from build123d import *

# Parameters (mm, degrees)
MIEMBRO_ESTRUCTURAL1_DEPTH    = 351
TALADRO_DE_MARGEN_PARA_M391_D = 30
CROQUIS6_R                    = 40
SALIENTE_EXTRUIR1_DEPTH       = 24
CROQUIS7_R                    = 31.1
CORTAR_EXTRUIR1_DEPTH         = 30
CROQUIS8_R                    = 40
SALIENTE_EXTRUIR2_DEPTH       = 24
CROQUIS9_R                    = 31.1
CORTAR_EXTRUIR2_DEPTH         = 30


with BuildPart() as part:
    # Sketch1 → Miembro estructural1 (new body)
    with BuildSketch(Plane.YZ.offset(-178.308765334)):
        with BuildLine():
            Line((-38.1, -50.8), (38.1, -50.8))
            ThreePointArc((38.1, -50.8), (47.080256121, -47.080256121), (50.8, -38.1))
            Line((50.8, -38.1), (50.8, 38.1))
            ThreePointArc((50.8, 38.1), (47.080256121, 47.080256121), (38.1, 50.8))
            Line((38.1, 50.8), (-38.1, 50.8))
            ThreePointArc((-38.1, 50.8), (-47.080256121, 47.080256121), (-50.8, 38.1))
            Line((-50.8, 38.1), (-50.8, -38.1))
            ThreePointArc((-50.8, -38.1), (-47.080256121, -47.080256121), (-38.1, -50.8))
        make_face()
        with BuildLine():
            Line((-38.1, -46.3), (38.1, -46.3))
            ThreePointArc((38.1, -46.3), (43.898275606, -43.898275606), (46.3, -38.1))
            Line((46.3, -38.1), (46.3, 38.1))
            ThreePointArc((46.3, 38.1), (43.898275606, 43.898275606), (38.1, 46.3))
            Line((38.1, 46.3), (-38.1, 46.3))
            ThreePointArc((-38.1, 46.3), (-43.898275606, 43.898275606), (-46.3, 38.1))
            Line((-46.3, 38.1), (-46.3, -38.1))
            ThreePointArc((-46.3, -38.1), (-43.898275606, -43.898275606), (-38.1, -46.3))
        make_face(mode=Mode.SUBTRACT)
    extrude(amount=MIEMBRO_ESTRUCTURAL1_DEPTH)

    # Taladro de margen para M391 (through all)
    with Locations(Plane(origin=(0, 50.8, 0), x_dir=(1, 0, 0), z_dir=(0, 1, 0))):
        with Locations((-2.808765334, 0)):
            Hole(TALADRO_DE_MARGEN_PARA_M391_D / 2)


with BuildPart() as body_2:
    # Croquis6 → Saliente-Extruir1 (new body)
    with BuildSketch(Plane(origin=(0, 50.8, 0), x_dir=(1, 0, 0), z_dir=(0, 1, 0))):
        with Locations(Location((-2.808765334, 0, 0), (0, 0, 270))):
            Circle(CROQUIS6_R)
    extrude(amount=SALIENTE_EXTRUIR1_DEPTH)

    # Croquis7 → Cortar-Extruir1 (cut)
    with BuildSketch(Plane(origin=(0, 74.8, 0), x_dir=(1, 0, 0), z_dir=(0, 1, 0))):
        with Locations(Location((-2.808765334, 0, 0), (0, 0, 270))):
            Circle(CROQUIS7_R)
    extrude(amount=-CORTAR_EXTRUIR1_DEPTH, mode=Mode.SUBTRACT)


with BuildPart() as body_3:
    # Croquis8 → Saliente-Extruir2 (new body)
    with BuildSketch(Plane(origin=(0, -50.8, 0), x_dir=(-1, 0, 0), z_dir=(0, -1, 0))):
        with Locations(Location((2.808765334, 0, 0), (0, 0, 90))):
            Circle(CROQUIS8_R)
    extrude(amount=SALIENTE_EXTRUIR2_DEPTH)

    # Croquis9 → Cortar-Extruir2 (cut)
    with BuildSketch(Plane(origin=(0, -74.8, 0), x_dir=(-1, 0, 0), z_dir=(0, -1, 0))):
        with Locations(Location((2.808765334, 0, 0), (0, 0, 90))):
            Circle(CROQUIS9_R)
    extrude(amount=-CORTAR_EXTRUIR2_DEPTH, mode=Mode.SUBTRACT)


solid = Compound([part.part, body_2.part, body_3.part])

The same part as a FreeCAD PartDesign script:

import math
import FreeCAD as App
import Part
import Sketcher

V = App.Vector
Q = App.Units.Quantity

doc = App.newDocument("Part")
body = doc.addObject("PartDesign::Body", "Body")

# Sketch on YZ plane
sketch1 = body.newObject("Sketcher::SketchObject", "Sketch")
sketch1.AttachmentSupport = (doc.getObject("YZ_Plane"), [""])
sketch1.MapMode = "FlatFace"
sketch1.AttachmentOffset = App.Placement(V(0, 0, -178.308765), App.Rotation())
sketch1.addGeometry(Part.LineSegment(V(-38.1, -50.8, 0), V(38.1, -50.8, 0)), False)
sketch1.addGeometry(Part.ArcOfCircle(Part.Circle(V(38.1, -38.1, 0), V(0, 0, 1), 12.7), math.radians(-90), math.radians(0)), False)
sketch1.addGeometry(Part.LineSegment(V(50.8, -38.1, 0), V(50.8, 38.1, 0)), False)
sketch1.addGeometry(Part.ArcOfCircle(Part.Circle(V(38.1, 38.1, 0), V(0, 0, 1), 12.7), math.radians(0), math.radians(90)), False)
sketch1.addGeometry(Part.LineSegment(V(38.1, 50.8, 0), V(-38.1, 50.8, 0)), False)
sketch1.addGeometry(Part.ArcOfCircle(Part.Circle(V(-38.1, 38.1, 0), V(0, 0, 1), 12.7), math.radians(90), math.radians(180)), False)
sketch1.addGeometry(Part.LineSegment(V(-50.8, 38.1, 0), V(-50.8, -38.1, 0)), False)
sketch1.addGeometry(Part.ArcOfCircle(Part.Circle(V(-38.1, -38.1, 0), V(0, 0, 1), 12.7), math.radians(180), math.radians(270)), False)
sketch1.addGeometry(Part.LineSegment(V(38.1, -46.3, 0), V(-38.1, -46.3, 0)), False)
sketch1.addGeometry(Part.ArcOfCircle(Part.Circle(V(-38.1, -38.1, 0), V(0, 0, 1), 8.2), math.radians(180), math.radians(270)), False)
sketch1.addGeometry(Part.LineSegment(V(-46.3, -38.1, 0), V(-46.3, 38.1, 0)), False)
sketch1.addGeometry(Part.ArcOfCircle(Part.Circle(V(-38.1, 38.1, 0), V(0, 0, 1), 8.2), math.radians(90), math.radians(180)), False)
sketch1.addGeometry(Part.LineSegment(V(-38.1, 46.3, 0), V(38.1, 46.3, 0)), False)
sketch1.addGeometry(Part.ArcOfCircle(Part.Circle(V(38.1, 38.1, 0), V(0, 0, 1), 8.2), math.radians(0), math.radians(90)), False)
sketch1.addGeometry(Part.LineSegment(V(46.3, 38.1, 0), V(46.3, -38.1, 0)), False)
sketch1.addGeometry(Part.ArcOfCircle(Part.Circle(V(38.1, -38.1, 0), V(0, 0, 1), 8.2), math.radians(-90), math.radians(0)), False)
sketch1.addConstraint(Sketcher.Constraint("Tangent", 0, 2, 1, 1))
sketch1.addConstraint(Sketcher.Constraint("Tangent", 1, 2, 2, 1))
sketch1.addConstraint(Sketcher.Constraint("Tangent", 2, 2, 3, 1))
sketch1.addConstraint(Sketcher.Constraint("Tangent", 3, 2, 4, 1))
sketch1.addConstraint(Sketcher.Constraint("Tangent", 4, 2, 5, 1))
sketch1.addConstraint(Sketcher.Constraint("Tangent", 5, 2, 6, 1))
sketch1.addConstraint(Sketcher.Constraint("Tangent", 6, 2, 7, 1))
sketch1.addConstraint(Sketcher.Constraint("Tangent", 7, 2, 0, 1))
sketch1.addConstraint(Sketcher.Constraint("Tangent", 8, 2, 9, 2))
sketch1.addConstraint(Sketcher.Constraint("Tangent", 9, 1, 10, 1))
sketch1.addConstraint(Sketcher.Constraint("Tangent", 10, 2, 11, 2))
sketch1.addConstraint(Sketcher.Constraint("Tangent", 11, 1, 12, 1))
sketch1.addConstraint(Sketcher.Constraint("Tangent", 12, 2, 13, 2))
sketch1.addConstraint(Sketcher.Constraint("Tangent", 13, 1, 14, 1))
sketch1.addConstraint(Sketcher.Constraint("Tangent", 14, 2, 15, 2))
sketch1.addConstraint(Sketcher.Constraint("Tangent", 15, 1, 8, 1))
sketch1.addConstraint(Sketcher.Constraint("Horizontal", 0))
sketch1.addConstraint(Sketcher.Constraint("Vertical", 2))
sketch1.addConstraint(Sketcher.Constraint("Horizontal", 4))
sketch1.addConstraint(Sketcher.Constraint("Vertical", 6))
sketch1.addConstraint(Sketcher.Constraint("Horizontal", 8))
sketch1.addConstraint(Sketcher.Constraint("Vertical", 10))
sketch1.addConstraint(Sketcher.Constraint("Horizontal", 12))
sketch1.addConstraint(Sketcher.Constraint("Vertical", 14))
sketch1.addConstraint(Sketcher.Constraint("Coincident", 9, 3, 7, 3))
sketch1.addConstraint(Sketcher.Constraint("Coincident", 11, 3, 5, 3))
sketch1.addConstraint(Sketcher.Constraint("Coincident", 13, 3, 3, 3))
sketch1.addConstraint(Sketcher.Constraint("Equal", 1, 3))
sketch1.addConstraint(Sketcher.Constraint("Equal", 3, 5))
sketch1.addConstraint(Sketcher.Constraint("Equal", 5, 7))
sketch1.addConstraint(Sketcher.Constraint("Equal", 13, 15))
sketch1.addConstraint(Sketcher.Constraint("Symmetric", 1, 3, 5, 3, -1, 1))
sketch1.addConstraint(Sketcher.Constraint("Equal", 12, 2))
sketch1.addConstraint(Sketcher.Constraint("Radius", 1, Q("12.7 mm")))
sketch1.addConstraint(Sketcher.Constraint("Radius", 9, Q("8.2 mm")))
sketch1.addConstraint(Sketcher.Constraint("DistanceX", 0, 1, 0, 2, Q("76.2 mm")))
pad1 = body.newObject("PartDesign::Pad", "Pad")
pad1.Profile = sketch1
pad1.Length = 351

# Sketch on XZ plane
sketch2 = body.newObject("Sketcher::SketchObject", "Sketch001")
sketch2.AttachmentSupport = (doc.getObject("XZ_Plane"), [""])
sketch2.MapMode = "FlatFace"
sketch2.AttachmentOffset = App.Placement(V(0, 0, -50.8), App.Rotation())
sketch2.addGeometry(Part.Circle(V(-2.808765, 0, 0), V(0, 0, 1), 15), False)
sketch2.addConstraint(Sketcher.Constraint("PointOnObject", 0, 3, -1))
sketch2.addConstraint(Sketcher.Constraint("Diameter", 0, Q("30 mm")))
sketch2.addConstraint(Sketcher.Constraint("DistanceX", 0, 3, -1, 1, Q("2.808765 mm")))
doc.recompute()
hole = body.newObject("PartDesign::Hole", "Hole")
hole.Profile = sketch2
hole.ThreadType = "None"
hole.Diameter = 30
hole.DepthType = "ThroughAll"
hole.Reversed = True
body2 = doc.addObject("PartDesign::Body", "Body001")

# Sketch on XZ plane
sketch3 = body2.newObject("Sketcher::SketchObject", "Sketch002")
sketch3.AttachmentSupport = (doc.getObject("XZ_Plane001"), [""])
sketch3.MapMode = "FlatFace"
sketch3.AttachmentOffset = App.Placement(V(0, 0, -50.8), App.Rotation())
sketch3.addGeometry(Part.Circle(V(-2.808765, 0, 0), V(0, 0, 1), 40), False)
sketch3.addConstraint(Sketcher.Constraint("PointOnObject", 0, 3, -1))
sketch3.addConstraint(Sketcher.Constraint("Diameter", 0, Q("80 mm")))
sketch3.addConstraint(Sketcher.Constraint("DistanceX", 0, 3, -1, 1, Q("2.808765 mm")))
pad2 = body2.newObject("PartDesign::Pad", "Pad001")
pad2.Profile = sketch3
pad2.Length = 24
pad2.Reversed = True

# Sketch on XZ plane
sketch4 = body2.newObject("Sketcher::SketchObject", "Sketch003")
sketch4.AttachmentSupport = (doc.getObject("XZ_Plane001"), [""])
sketch4.MapMode = "FlatFace"
sketch4.AttachmentOffset = App.Placement(V(0, 0, -74.8), App.Rotation())
sketch4.addGeometry(Part.Circle(V(-2.808765, 0, 0), V(0, 0, 1), 31.1), False)
sketch4.addConstraint(Sketcher.Constraint("PointOnObject", 0, 3, -1))
sketch4.addConstraint(Sketcher.Constraint("Diameter", 0, Q("62.2 mm")))
sketch4.addConstraint(Sketcher.Constraint("DistanceX", 0, 3, -1, 1, Q("2.808765 mm")))
pocket1 = body2.newObject("PartDesign::Pocket", "Pocket")
pocket1.Profile = sketch4
pocket1.Length = 30
pocket1.Reversed = True
body3 = doc.addObject("PartDesign::Body", "Body002")

# Sketch on XZ plane
sketch5 = body3.newObject("Sketcher::SketchObject", "Sketch004")
sketch5.AttachmentSupport = (doc.getObject("XZ_Plane002"), [""])
sketch5.MapMode = "FlatFace"
sketch5.AttachmentOffset = App.Placement(V(0, 0, 50.8), App.Rotation())
sketch5.addGeometry(Part.Circle(V(-2.808765, 0, 0), V(0, 0, 1), 40), False)
sketch5.addConstraint(Sketcher.Constraint("PointOnObject", 0, 3, -1))
sketch5.addConstraint(Sketcher.Constraint("Diameter", 0, Q("80 mm")))
sketch5.addConstraint(Sketcher.Constraint("DistanceX", 0, 3, -1, 1, Q("2.808765 mm")))
pad3 = body3.newObject("PartDesign::Pad", "Pad002")
pad3.Profile = sketch5
pad3.Length = 24

# Sketch on XZ plane
sketch6 = body3.newObject("Sketcher::SketchObject", "Sketch005")
sketch6.AttachmentSupport = (doc.getObject("XZ_Plane002"), [""])
sketch6.MapMode = "FlatFace"
sketch6.AttachmentOffset = App.Placement(V(0, 0, 74.8), App.Rotation())
sketch6.addGeometry(Part.Circle(V(-2.808765, 0, 0), V(0, 0, 1), 31.1), False)
sketch6.addConstraint(Sketcher.Constraint("PointOnObject", 0, 3, -1))
sketch6.addConstraint(Sketcher.Constraint("Diameter", 0, Q("62.2 mm")))
sketch6.addConstraint(Sketcher.Constraint("DistanceX", 0, 3, -1, 1, Q("2.808765 mm")))
pocket2 = body3.newObject("PartDesign::Pocket", "Pocket001")
pocket2.Profile = sketch6
pocket2.Length = 30

doc.recompute()
